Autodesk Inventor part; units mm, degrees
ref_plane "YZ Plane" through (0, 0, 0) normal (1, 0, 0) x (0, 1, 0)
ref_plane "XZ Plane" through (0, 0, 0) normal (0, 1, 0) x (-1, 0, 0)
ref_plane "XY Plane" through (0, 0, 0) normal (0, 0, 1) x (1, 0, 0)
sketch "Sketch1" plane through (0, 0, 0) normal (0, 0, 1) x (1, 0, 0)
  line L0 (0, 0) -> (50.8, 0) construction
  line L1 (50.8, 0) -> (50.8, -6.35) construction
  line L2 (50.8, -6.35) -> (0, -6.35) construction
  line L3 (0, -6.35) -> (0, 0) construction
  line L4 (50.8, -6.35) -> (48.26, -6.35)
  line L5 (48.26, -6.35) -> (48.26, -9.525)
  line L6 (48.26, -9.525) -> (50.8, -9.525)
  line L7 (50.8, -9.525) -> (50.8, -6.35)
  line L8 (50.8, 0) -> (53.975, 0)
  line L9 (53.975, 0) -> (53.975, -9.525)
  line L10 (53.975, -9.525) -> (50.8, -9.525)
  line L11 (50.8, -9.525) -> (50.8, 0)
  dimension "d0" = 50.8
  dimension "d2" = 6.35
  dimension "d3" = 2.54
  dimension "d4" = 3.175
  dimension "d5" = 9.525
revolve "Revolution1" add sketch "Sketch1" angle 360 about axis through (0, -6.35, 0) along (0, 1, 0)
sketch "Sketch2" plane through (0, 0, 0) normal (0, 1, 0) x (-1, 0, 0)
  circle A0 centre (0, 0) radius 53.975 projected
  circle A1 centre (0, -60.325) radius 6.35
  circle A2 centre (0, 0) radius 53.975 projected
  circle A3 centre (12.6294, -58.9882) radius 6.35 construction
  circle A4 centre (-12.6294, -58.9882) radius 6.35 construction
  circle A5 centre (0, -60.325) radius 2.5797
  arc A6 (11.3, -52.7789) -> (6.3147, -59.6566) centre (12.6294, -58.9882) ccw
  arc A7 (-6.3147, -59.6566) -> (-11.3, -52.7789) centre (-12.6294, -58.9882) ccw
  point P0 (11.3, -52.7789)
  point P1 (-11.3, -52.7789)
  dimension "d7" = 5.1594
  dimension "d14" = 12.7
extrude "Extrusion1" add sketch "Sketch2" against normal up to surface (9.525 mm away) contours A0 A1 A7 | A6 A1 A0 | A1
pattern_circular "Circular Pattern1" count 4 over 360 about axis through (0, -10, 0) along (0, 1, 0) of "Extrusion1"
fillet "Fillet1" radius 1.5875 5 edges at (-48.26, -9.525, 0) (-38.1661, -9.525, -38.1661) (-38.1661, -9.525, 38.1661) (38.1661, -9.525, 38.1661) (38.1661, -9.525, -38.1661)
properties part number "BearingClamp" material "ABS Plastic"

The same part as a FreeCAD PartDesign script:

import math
import FreeCAD as App
import Part
import Sketcher
Q = App.Units.Quantity


def edges_at(feature, points):
    """Names of the edges that pass closest to the given points."""
    edges = feature.Shape.Edges
    near = lambda p: min(range(len(edges)), key=lambda i: edges[i].distToShape(Part.Vertex(*p))[0])
    return sorted({f"Edge{near(p) + 1}" for p in points})

doc = App.newDocument("Part")
body = doc.addObject("PartDesign::Body", "Body")

# Sketch on XY plane
sketch1 = body.newObject("Sketcher::SketchObject", "Sketch")
sketch1.AttachmentSupport = (doc.getObject("XY_Plane"), [""])
sketch1.MapMode = "FlatFace"
sketch1.addGeometry(Part.LineSegment(App.Vector(48.26, -9.525, 0), App.Vector(53.975, -9.525, 0)), False)
sketch1.addGeometry(Part.LineSegment(App.Vector(53.975, -9.525, 0), App.Vector(53.975, 0, 0)), False)
sketch1.addGeometry(Part.LineSegment(App.Vector(53.975, 0, 0), App.Vector(50.8, 0, 0)), False)
sketch1.addGeometry(Part.LineSegment(App.Vector(50.8, 0, 0), App.Vector(50.8, -6.35, 0)), False)
sketch1.addGeometry(Part.LineSegment(App.Vector(50.8, -6.35, 0), App.Vector(48.26, -6.35, 0)), False)
sketch1.addGeometry(Part.LineSegment(App.Vector(48.26, -6.35, 0), App.Vector(48.26, -9.525, 0)), False)
sketch1.addConstraint(Sketcher.Constraint("Coincident", 0, 2, 1, 1))
sketch1.addConstraint(Sketcher.Constraint("Coincident", 1, 2, 2, 1))
sketch1.addConstraint(Sketcher.Constraint("Coincident", 2, 2, 3, 1))
sketch1.addConstraint(Sketcher.Constraint("Coincident", 3, 2, 4, 1))
sketch1.addConstraint(Sketcher.Constraint("Coincident", 4, 2, 5, 1))
sketch1.addConstraint(Sketcher.Constraint("Coincident", 5, 2, 0, 1))
sketch1.addConstraint(Sketcher.Constraint("Horizontal", 0))
sketch1.addConstraint(Sketcher.Constraint("Vertical", 1))
sketch1.addConstraint(Sketcher.Constraint("Horizontal", 2))
sketch1.addConstraint(Sketcher.Constraint("Vertical", 3))
sketch1.addConstraint(Sketcher.Constraint("Horizontal", 4))
sketch1.addConstraint(Sketcher.Constraint("Vertical", 5))
sketch1.addConstraint(Sketcher.Constraint("PointOnObject", 1, 2, -1))
sketch1.addConstraint(Sketcher.Constraint("Equal", 2, 5))
sketch1.addConstraint(Sketcher.Constraint("DistanceX", 4, 2, 4, 1, Q("0.1 in")))
sketch1.addConstraint(Sketcher.Constraint("DistanceX", -1, 1, 2, 2, Q("2 in")))
sketch1.addConstraint(Sketcher.Constraint("DistanceY", 3, 2, 3, 1, Q("0.25 in")))
sketch1.addConstraint(Sketcher.Constraint("DistanceX", 2, 2, 2, 1, Q("0.125 in")))
revolution = body.newObject("PartDesign::Revolution", "Revolution")
revolution.Profile = sketch1
revolution.ReferenceAxis = (sketch1, ["V_Axis"])
revolution.Angle = 360

# Sketch on XZ plane
sketch2 = body.newObject("Sketcher::SketchObject", "Sketch001")
sketch2.AttachmentSupport = (doc.getObject("XZ_Plane"), [""])
sketch2.MapMode = "FlatFace"
sketch2.addGeometry(Part.ArcOfCircle(Part.Circle(App.Vector(12.6294, -58.9882, 0), App.Vector(0, 0, 1), 6.35), math.radians(102.084485), math.radians(186.04216)), False)
sketch2.addGeometry(Part.ArcOfCircle(Part.Circle(App.Vector(0, -60.325, 0), App.Vector(0, 0, 1), 6.35), math.radians(173.95784), math.radians(366.04216)), False)
sketch2.addGeometry(Part.ArcOfCircle(Part.Circle(App.Vector(-12.6294, -58.9882, 0), App.Vector(0, 0, 1), 6.35), math.radians(-6.04216), math.radians(77.915515)), False)
sketch2.addGeometry(Part.ArcOfCircle(Part.Circle(App.Vector(0, 0, 0), App.Vector(0, 0, 1), 53.975), math.radians(-102.084622), math.radians(-77.915378)), False)
sketch2.addGeometry(Part.Circle(App.Vector(0, -60.325, 0), App.Vector(0, 0, 1), 2.5797), False)
sketch2.addConstraint(Sketcher.Constraint("Tangent", 0, 2, 1, 2))
sketch2.addConstraint(Sketcher.Constraint("Tangent", 1, 1, 2, 1))
sketch2.addConstraint(Sketcher.Constraint("Tangent", 2, 2, 3, 1))
sketch2.addConstraint(Sketcher.Constraint("Tangent", 3, 2, 0, 1))
sketch2.addConstraint(Sketcher.Constraint("Coincident", 3, 3, -1, 1))
sketch2.addConstraint(Sketcher.Constraint("Coincident", 4, 3, 1, 3))
sketch2.addConstraint(Sketcher.Constraint("Equal", 0, 1))
sketch2.addConstraint(Sketcher.Constraint("Equal", 1, 2))
sketch2.addConstraint(Sketcher.Constraint("PointOnObject", 1, 3, -2))
sketch2.addConstraint(Sketcher.Constraint("Radius", 0, Q("0.25 in")))
sketch2.addConstraint(Sketcher.Constraint("Diameter", 4, Q("0.203126 in")))
sketch2.addConstraint(Sketcher.Constraint("Radius", 3, Q("2.125 in")))
sketch2.addConstraint(Sketcher.Constraint("DistanceY", 1, 3, -1, 1, Q("2.375 in")))
pad1 = body.newObject("PartDesign::Pad", "Pad")
pad1.Profile = sketch2
pad1.Length = Q("0.375 in")
doc.recompute()

polarpattern = body.newObject("PartDesign::PolarPattern", "PolarPattern")
polarpattern.Originals = [pad1]
polarpattern.Axis = (doc.getObject("Y_Axis"), [""])
polarpattern.Angle = 360
polarpattern.Occurrences = 4
body.Tip = polarpattern
doc.recompute()

fillet = body.newObject("PartDesign::Fillet", "Fillet")
fillet.Base = (polarpattern, edges_at(polarpattern, [
    (-48.26, -9.525, 0),
    (-38.166, -9.525, -38.166),
    (-38.166, -9.525, 38.166),
    (38.166, -9.525, 38.166),
    (38.166, -9.525, -38.166),
]))
fillet.Radius = Q("0.0625 in")

doc.recompute()
